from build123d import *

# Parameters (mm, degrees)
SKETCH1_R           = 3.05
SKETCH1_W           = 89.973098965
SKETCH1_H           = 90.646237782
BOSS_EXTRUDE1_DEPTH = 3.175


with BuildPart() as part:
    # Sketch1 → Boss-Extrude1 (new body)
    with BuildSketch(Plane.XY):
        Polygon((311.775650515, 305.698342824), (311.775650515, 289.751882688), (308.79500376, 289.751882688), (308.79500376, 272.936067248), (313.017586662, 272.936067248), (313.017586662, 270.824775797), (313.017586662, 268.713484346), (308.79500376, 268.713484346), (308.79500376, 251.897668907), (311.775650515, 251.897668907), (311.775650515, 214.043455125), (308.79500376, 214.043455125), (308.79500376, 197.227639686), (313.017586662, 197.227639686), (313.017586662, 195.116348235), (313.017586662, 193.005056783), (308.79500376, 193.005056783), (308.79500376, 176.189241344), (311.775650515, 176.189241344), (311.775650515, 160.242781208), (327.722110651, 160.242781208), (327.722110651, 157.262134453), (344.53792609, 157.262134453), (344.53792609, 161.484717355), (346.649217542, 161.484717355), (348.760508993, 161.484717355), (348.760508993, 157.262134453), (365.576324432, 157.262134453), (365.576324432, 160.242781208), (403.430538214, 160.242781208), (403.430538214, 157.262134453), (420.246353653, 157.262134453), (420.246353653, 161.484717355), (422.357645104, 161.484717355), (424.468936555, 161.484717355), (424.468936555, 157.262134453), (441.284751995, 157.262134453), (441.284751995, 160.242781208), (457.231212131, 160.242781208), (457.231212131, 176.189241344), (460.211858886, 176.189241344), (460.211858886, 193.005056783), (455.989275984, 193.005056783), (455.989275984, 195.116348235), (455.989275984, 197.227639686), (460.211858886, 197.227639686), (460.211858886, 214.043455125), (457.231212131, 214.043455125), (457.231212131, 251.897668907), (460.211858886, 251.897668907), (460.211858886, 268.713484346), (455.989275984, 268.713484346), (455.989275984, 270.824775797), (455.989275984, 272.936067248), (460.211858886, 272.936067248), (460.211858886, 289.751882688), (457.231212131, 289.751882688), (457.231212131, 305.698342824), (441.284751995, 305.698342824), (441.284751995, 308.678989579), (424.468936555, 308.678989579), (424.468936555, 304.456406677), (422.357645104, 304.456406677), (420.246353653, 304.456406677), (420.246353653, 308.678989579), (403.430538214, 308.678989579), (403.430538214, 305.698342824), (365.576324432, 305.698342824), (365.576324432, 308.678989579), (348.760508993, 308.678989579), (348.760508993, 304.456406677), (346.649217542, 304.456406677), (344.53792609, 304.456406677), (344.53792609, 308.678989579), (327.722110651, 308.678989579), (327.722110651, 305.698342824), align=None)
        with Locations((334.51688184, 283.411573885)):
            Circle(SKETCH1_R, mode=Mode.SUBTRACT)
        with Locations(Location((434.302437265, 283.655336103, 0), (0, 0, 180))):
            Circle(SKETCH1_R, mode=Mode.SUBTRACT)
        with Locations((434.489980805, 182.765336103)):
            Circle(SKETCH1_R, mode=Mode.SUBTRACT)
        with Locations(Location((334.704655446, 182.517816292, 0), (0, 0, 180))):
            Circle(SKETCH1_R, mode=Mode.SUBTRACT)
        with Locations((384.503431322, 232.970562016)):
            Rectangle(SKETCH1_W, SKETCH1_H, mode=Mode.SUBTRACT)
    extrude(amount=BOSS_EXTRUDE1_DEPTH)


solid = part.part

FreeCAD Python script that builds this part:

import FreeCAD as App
import Part
import Sketcher

V = App.Vector
Q = App.Units.Quantity

doc = App.newDocument("Part")
body = doc.addObject("PartDesign::Body", "Body")

sketch1 = body.newObject("Sketcher::SketchObject", "Sketch")
sketch1.AttachmentSupport = (doc.getObject("XY_Plane"), [""])
sketch1.MapMode = "FlatFace"
sketch1.addGeometry([
    Part.LineSegment(V(311.775651, 305.698343, 0), V(311.775651, 289.751883, 0)),
    Part.LineSegment(V(311.775651, 289.751883, 0), V(308.795004, 289.751883, 0)),
    Part.LineSegment(V(308.795004, 289.751883, 0), V(308.795004, 272.936067, 0)),
    Part.LineSegment(V(308.795004, 272.936067, 0), V(313.017587, 272.936067, 0)),
    Part.LineSegment(V(313.017587, 272.936067, 0), V(313.017587, 268.713484, 0)),
    Part.LineSegment(V(313.017587, 268.713484, 0), V(308.795004, 268.713484, 0)),
    Part.LineSegment(V(308.795004, 268.713484, 0), V(308.795004, 251.897669, 0)),
    Part.LineSegment(V(308.795004, 251.897669, 0), V(311.775651, 251.897669, 0)),
    Part.LineSegment(V(311.775651, 251.897669, 0), V(311.775651, 214.043455, 0)),
    Part.LineSegment(V(311.775651, 214.043455, 0), V(308.795004, 214.043455, 0)),
    Part.LineSegment(V(308.795004, 214.043455, 0), V(308.795004, 197.22764, 0)),
    Part.LineSegment(V(308.795004, 197.22764, 0), V(313.017587, 197.22764, 0)),
    Part.LineSegment(V(313.017587, 197.22764, 0), V(313.017587, 193.005057, 0)),
    Part.LineSegment(V(313.017587, 193.005057, 0), V(308.795004, 193.005057, 0)),
    Part.LineSegment(V(308.795004, 193.005057, 0), V(308.795004, 176.189241, 0)),
    Part.LineSegment(V(308.795004, 176.189241, 0), V(311.775651, 176.189241, 0)),
    Part.LineSegment(V(311.775651, 176.189241, 0), V(311.775651, 160.242781, 0)),
    Part.LineSegment(V(311.775651, 160.242781, 0), V(327.722111, 160.242781, 0)),
    Part.LineSegment(V(327.722111, 160.242781, 0), V(327.722111, 157.262134, 0)),
    Part.LineSegment(V(327.722111, 157.262134, 0), V(344.537926, 157.262134, 0)),
    Part.LineSegment(V(344.537926, 157.262134, 0), V(344.537926, 161.484717, 0)),
    Part.LineSegment(V(344.537926, 161.484717, 0), V(348.760509, 161.484717, 0)),
    Part.LineSegment(V(348.760509, 161.484717, 0), V(348.760509, 157.262134, 0)),
    Part.LineSegment(V(348.760509, 157.262134, 0), V(365.576324, 157.262134, 0)),
    Part.LineSegment(V(365.576324, 157.262134, 0), V(365.576324, 160.242781, 0)),
    Part.LineSegment(V(365.576324, 160.242781, 0), V(403.430538, 160.242781, 0)),
    Part.LineSegment(V(403.430538, 160.242781, 0), V(403.430538, 157.262134, 0)),
    Part.LineSegment(V(403.430538, 157.262134, 0), V(420.246354, 157.262134, 0)),
    Part.LineSegment(V(420.246354, 157.262134, 0), V(420.246354, 161.484717, 0)),
    Part.LineSegment(V(420.246354, 161.484717, 0), V(424.468937, 161.484717, 0)),
    Part.LineSegment(V(424.468937, 161.484717, 0), V(424.468937, 157.262134, 0)),
    Part.LineSegment(V(424.468937, 157.262134, 0), V(441.284752, 157.262134, 0)),
    Part.LineSegment(V(441.284752, 157.262134, 0), V(441.284752, 160.242781, 0)),
    Part.LineSegment(V(441.284752, 160.242781, 0), V(457.231212, 160.242781, 0)),
    Part.LineSegment(V(457.231212, 160.242781, 0), V(457.231212, 176.189241, 0)),
    Part.LineSegment(V(457.231212, 176.189241, 0), V(460.211859, 176.189241, 0)),
    Part.LineSegment(V(460.211859, 176.189241, 0), V(460.211859, 193.005057, 0)),
    Part.LineSegment(V(460.211859, 193.005057, 0), V(455.989276, 193.005057, 0)),
    Part.LineSegment(V(455.989276, 193.005057, 0), V(455.989276, 197.22764, 0)),
    Part.LineSegment(V(455.989276, 197.22764, 0), V(460.211859, 197.22764, 0)),
    Part.LineSegment(V(460.211859, 197.22764, 0), V(460.211859, 214.043455, 0)),
    Part.LineSegment(V(460.211859, 214.043455, 0), V(457.231212, 214.043455, 0)),
    Part.LineSegment(V(457.231212, 214.043455, 0), V(457.231212, 251.897669, 0)),
    Part.LineSegment(V(457.231212, 251.897669, 0), V(460.211859, 251.897669, 0)),
    Part.LineSegment(V(460.211859, 251.897669, 0), V(460.211859, 268.713484, 0)),
    Part.LineSegment(V(460.211859, 268.713484, 0), V(455.989276, 268.713484, 0)),
    Part.LineSegment(V(455.989276, 268.713484, 0), V(455.989276, 272.936067, 0)),
    Part.LineSegment(V(455.989276, 272.936067, 0), V(460.211859, 272.936067, 0)),
    Part.LineSegment(V(460.211859, 272.936067, 0), V(460.211859, 289.751883, 0)),
    Part.LineSegment(V(460.211859, 289.751883, 0), V(457.231212, 289.751883, 0)),
    Part.LineSegment(V(457.231212, 289.751883, 0), V(457.231212, 305.698343, 0)),
    Part.LineSegment(V(457.231212, 305.698343, 0), V(441.284752, 305.698343, 0)),
    Part.LineSegment(V(441.284752, 305.698343, 0), V(441.284752, 308.67899, 0)),
    Part.LineSegment(V(441.284752, 308.67899, 0), V(424.468937, 308.67899, 0)),
    Part.LineSegment(V(424.468937, 308.67899, 0), V(424.468937, 304.456407, 0)),
    Part.LineSegment(V(424.468937, 304.456407, 0), V(420.246354, 304.456407, 0)),
    Part.LineSegment(V(420.246354, 304.456407, 0), V(420.246354, 308.67899, 0)),
    Part.LineSegment(V(420.246354, 308.67899, 0), V(403.430538, 308.67899, 0)),
    Part.LineSegment(V(403.430538, 308.67899, 0), V(403.430538, 305.698343, 0)),
    Part.LineSegment(V(403.430538, 305.698343, 0), V(365.576324, 305.698343, 0)),
    Part.LineSegment(V(365.576324, 305.698343, 0), V(365.576324, 308.67899, 0)),
    Part.LineSegment(V(365.576324, 308.67899, 0), V(348.760509, 308.67899, 0)),
    Part.LineSegment(V(348.760509, 308.67899, 0), V(348.760509, 304.456407, 0)),
    Part.LineSegment(V(348.760509, 304.456407, 0), V(344.537926, 304.456407, 0)),
    Part.LineSegment(V(344.537926, 304.456407, 0), V(344.537926, 308.67899, 0)),
    Part.LineSegment(V(344.537926, 308.67899, 0), V(327.722111, 308.67899, 0)),
    Part.LineSegment(V(327.722111, 308.67899, 0), V(327.722111, 305.698343, 0)),
    Part.LineSegment(V(327.722111, 305.698343, 0), V(311.775651, 305.698343, 0)),
    Part.Circle(V(334.704655, 182.517816, 0), V(0, 0, 1), 3.05),
    Part.LineSegment(V(429.489981, 187.647443, 0), V(339.516882, 187.647443, 0)),
    Part.LineSegment(V(339.516882, 187.647443, 0), V(339.516882, 278.293681, 0)),
    Part.LineSegment(V(339.516882, 278.293681, 0), V(429.489981, 278.293681, 0)),
    Part.LineSegment(V(429.489981, 278.293681, 0), V(429.489981, 187.647443, 0)),
    Part.Circle(V(434.489981, 182.765336, 0), V(0, 0, 1), 3.05),
    Part.Circle(V(334.516882, 283.411574, 0), V(0, 0, 1), 3.05),
    Part.Circle(V(434.302437, 283.655336, 0), V(0, 0, 1), 3.05),
], False)
sketch1.addConstraint([
    Sketcher.Constraint("Coincident", 0, 2, 1, 1),
    Sketcher.Constraint("Coincident", 1, 2, 2, 1),
    Sketcher.Constraint("Coincident", 2, 2, 3, 1),
    Sketcher.Constraint("Coincident", 3, 2, 4, 1),
    Sketcher.Constraint("Coincident", 4, 2, 5, 1),
    Sketcher.Constraint("Coincident", 5, 2, 6, 1),
    Sketcher.Constraint("Coincident", 6, 2, 7, 1),
    Sketcher.Constraint("Coincident", 7, 2, 8, 1),
    Sketcher.Constraint("Coincident", 8, 2, 9, 1),
    Sketcher.Constraint("Coincident", 9, 2, 10, 1),
    Sketcher.Constraint("Coincident", 10, 2, 11, 1),
    Sketcher.Constraint("Coincident", 11, 2, 12, 1),
    Sketcher.Constraint("Coincident", 12, 2, 13, 1),
    Sketcher.Constraint("Coincident", 13, 2, 14, 1),
    Sketcher.Constraint("Coincident", 14, 2, 15, 1),
    Sketcher.Constraint("Coincident", 15, 2, 16, 1),
    Sketcher.Constraint("Coincident", 16, 2, 17, 1),
    Sketcher.Constraint("Coincident", 17, 2, 18, 1),
    Sketcher.Constraint("Coincident", 18, 2, 19, 1),
    Sketcher.Constraint("Coincident", 19, 2, 20, 1),
    Sketcher.Constraint("Coincident", 20, 2, 21, 1),
    Sketcher.Constraint("Coincident", 21, 2, 22, 1),
    Sketcher.Constraint("Coincident", 22, 2, 23, 1),
    Sketcher.Constraint("Coincident", 23, 2, 24, 1),
    Sketcher.Constraint("Coincident", 24, 2, 25, 1),
    Sketcher.Constraint("Coincident", 25, 2, 26, 1),
    Sketcher.Constraint("Coincident", 26, 2, 27, 1),
    Sketcher.Constraint("Coincident", 27, 2, 28, 1),
    Sketcher.Constraint("Coincident", 28, 2, 29, 1),
    Sketcher.Constraint("Coincident", 29, 2, 30, 1),
    Sketcher.Constraint("Coincident", 30, 2, 31, 1),
    Sketcher.Constraint("Coincident", 31, 2, 32, 1),
    Sketcher.Constraint("Coincident", 32, 2, 33, 1),
    Sketcher.Constraint("Coincident", 33, 2, 34, 1),
    Sketcher.Constraint("Coincident", 34, 2, 35, 1),
    Sketcher.Constraint("Coincident", 35, 2, 36, 1),
    Sketcher.Constraint("Coincident", 36, 2, 37, 1),
    Sketcher.Constraint("Coincident", 37, 2, 38, 1),
    Sketcher.Constraint("Coincident", 38, 2, 39, 1),
    Sketcher.Constraint("Coincident", 39, 2, 40, 1),
    Sketcher.Constraint("Coincident", 40, 2, 41, 1),
    Sketcher.Constraint("Coincident", 41, 2, 42, 1),
    Sketcher.Constraint("Coincident", 42, 2, 43, 1),
    Sketcher.Constraint("Coincident", 43, 2, 44, 1),
    Sketcher.Constraint("Coincident", 44, 2, 45, 1),
    Sketcher.Constraint("Coincident", 45, 2, 46, 1),
    Sketcher.Constraint("Coincident", 46, 2, 47, 1),
    Sketcher.Constraint("Coincident", 47, 2, 48, 1),
    Sketcher.Constraint("Coincident", 48, 2, 49, 1),
    Sketcher.Constraint("Coincident", 49, 2, 50, 1),
    Sketcher.Constraint("Coincident", 50, 2, 51, 1),
    Sketcher.Constraint("Coincident", 51, 2, 52, 1),
    Sketcher.Constraint("Coincident", 52, 2, 53, 1),
    Sketcher.Constraint("Coincident", 53, 2, 54, 1),
    Sketcher.Constraint("Coincident", 54, 2, 55, 1),
    Sketcher.Constraint("Coincident", 55, 2, 56, 1),
    Sketcher.Constraint("Coincident", 56, 2, 57, 1),
    Sketcher.Constraint("Coincident", 57, 2, 58, 1),
    Sketcher.Constraint("Coincident", 58, 2, 59, 1),
    Sketcher.Constraint("Coincident", 59, 2, 60, 1),
    Sketcher.Constraint("Coincident", 60, 2, 61, 1),
    Sketcher.Constraint("Coincident", 61, 2, 62, 1),
    Sketcher.Constraint("Coincident", 62, 2, 63, 1),
    Sketcher.Constraint("Coincident", 63, 2, 64, 1),
    Sketcher.Constraint("Coincident", 64, 2, 65, 1),
    Sketcher.Constraint("Coincident", 65, 2, 66, 1),
    Sketcher.Constraint("Coincident", 66, 2, 67, 1),
    Sketcher.Constraint("Coincident", 67, 2, 0, 1),
    Sketcher.Constraint("Coincident", 69, 2, 70, 1),
    Sketcher.Constraint("Coincident", 70, 2, 71, 1),
    Sketcher.Constraint("Coincident", 71, 2, 72, 1),
    Sketcher.Constraint("Coincident", 72, 2, 69, 1),
    Sketcher.Constraint("Vertical", 0),
    Sketcher.Constraint("Horizontal", 1),
    Sketcher.Constraint("Vertical", 2),
    Sketcher.Constraint("Horizontal", 3),
    Sketcher.Constraint("Vertical", 4),
    Sketcher.Constraint("Horizontal", 5),
    Sketcher.Constraint("Vertical", 6),
    Sketcher.Constraint("Horizontal", 7),
    Sketcher.Constraint("Vertical", 8),
    Sketcher.Constraint("Horizontal", 9),
    Sketcher.Constraint("Vertical", 10),
    Sketcher.Constraint("Horizontal", 11),
    Sketcher.Constraint("Vertical", 12),
    Sketcher.Constraint("Horizontal", 13),
    Sketcher.Constraint("Vertical", 14),
    Sketcher.Constraint("Horizontal", 15),
    Sketcher.Constraint("Vertical", 16),
    Sketcher.Constraint("Horizontal", 17),
    Sketcher.Constraint("Vertical", 18),
    Sketcher.Constraint("Horizontal", 19),
    Sketcher.Constraint("Vertical", 20),
    Sketcher.Constraint("Horizontal", 21),
    Sketcher.Constraint("Vertical", 22),
    Sketcher.Constraint("Horizontal", 23),
    Sketcher.Constraint("Vertical", 24),
    Sketcher.Constraint("Horizontal", 25),
    Sketcher.Constraint("Vertical", 26),
    Sketcher.Constraint("Horizontal", 27),
    Sketcher.Constraint("Vertical", 28),
    Sketcher.Constraint("Horizontal", 29),
    Sketcher.Constraint("Vertical", 30),
    Sketcher.Constraint("Horizontal", 31),
    Sketcher.Constraint("Vertical", 32),
    Sketcher.Constraint("Horizontal", 33),
    Sketcher.Constraint("Vertical", 34),
    Sketcher.Constraint("Horizontal", 35),
    Sketcher.Constraint("Vertical", 36),
    Sketcher.Constraint("Horizontal", 37),
    Sketcher.Constraint("Vertical", 38),
    Sketcher.Constraint("Horizontal", 39),
    Sketcher.Constraint("Vertical", 40),
    Sketcher.Constraint("Horizontal", 41),
    Sketcher.Constraint("Vertical", 42),
    Sketcher.Constraint("Horizontal", 43),
    Sketcher.Constraint("Vertical", 44),
    Sketcher.Constraint("Horizontal", 45),
    Sketcher.Constraint("Vertical", 46),
    Sketcher.Constraint("Horizontal", 47),
    Sketcher.Constraint("Vertical", 48),
    Sketcher.Constraint("Horizontal", 49),
    Sketcher.Constraint("Vertical", 50),
    Sketcher.Constraint("Horizontal", 51),
    Sketcher.Constraint("Vertical", 52),
    Sketcher.Constraint("Horizontal", 53),
    Sketcher.Constraint("Vertical", 54),
    Sketcher.Constraint("Horizontal", 55),
    Sketcher.Constraint("Vertical", 56),
    Sketcher.Constraint("Horizontal", 57),
    Sketcher.Constraint("Vertical", 58),
    Sketcher.Constraint("Horizontal", 59),
    Sketcher.Constraint("Vertical", 60),
    Sketcher.Constraint("Horizontal", 61),
    Sketcher.Constraint("Vertical", 62),
    Sketcher.Constraint("Horizontal", 63),
    Sketcher.Constraint("Vertical", 64),
    Sketcher.Constraint("Horizontal", 65),
    Sketcher.Constraint("Vertical", 66),
    Sketcher.Constraint("Horizontal", 67),
    Sketcher.Constraint("Horizontal", 69),
    Sketcher.Constraint("Vertical", 70),
    Sketcher.Constraint("Horizontal", 71),
    Sketcher.Constraint("Vertical", 72),
    Sketcher.Constraint("Equal", 68, 73),
    Sketcher.Constraint("Equal", 73, 74),
    Sketcher.Constraint("Equal", 74, 75),
    Sketcher.Constraint("Horizontal", 19, 2, 22, 2),
    Sketcher.Constraint("Horizontal", 17, 2, 24, 2),
    Sketcher.Constraint("Horizontal", 23, 2, 26, 2),
    Sketcher.Constraint("Horizontal", 21, 2, 28, 2),
    Sketcher.Constraint("Horizontal", 27, 2, 30, 2),
    Sketcher.Constraint("Horizontal", 25, 2, 32, 2),
    Sketcher.Constraint("Horizontal", 15, 2, 34, 2),
    Sketcher.Constraint("Horizontal", 13, 2, 36, 2),
    Sketcher.Constraint("Horizontal", 11, 2, 38, 2),
    Sketcher.Constraint("Horizontal", 9, 2, 40, 2),
    Sketcher.Constraint("Horizontal", 7, 2, 42, 2),
    Sketcher.Constraint("Horizontal", 5, 2, 44, 2),
    Sketcher.Constraint("Horizontal", 3, 2, 46, 2),
    Sketcher.Constraint("Horizontal", 1, 2, 48, 2),
    Sketcher.Constraint("Horizontal", 53, 2, 56, 2),
    Sketcher.Constraint("Horizontal", 51, 2, 58, 2),
    Sketcher.Constraint("Horizontal", 57, 2, 60, 2),
    Sketcher.Constraint("Horizontal", 55, 2, 62, 2),
    Sketcher.Constraint("Horizontal", 61, 2, 64, 2),
    Sketcher.Constraint("Horizontal", 59, 2, 66, 2),
    Sketcher.Constraint("Vertical", 2, 2, 5, 2),
    Sketcher.Constraint("Vertical", 0, 2, 7, 2),
    Sketcher.Constraint("Vertical", 6, 2, 9, 2),
    Sketcher.Constraint("Vertical", 4, 2, 11, 2),
    Sketcher.Constraint("Vertical", 10, 2, 13, 2),
    Sketcher.Constraint("Vertical", 8, 2, 15, 2),
    Sketcher.Constraint("Vertical", 36, 2, 39, 2),
    Sketcher.Constraint("Vertical", 34, 2, 41, 2),
    Sketcher.Constraint("Vertical", 40, 2, 43, 2),
    Sketcher.Constraint("Vertical", 38, 2, 45, 2),
    Sketcher.Constraint("Vertical", 44, 2, 47, 2),
    Sketcher.Constraint("Vertical", 42, 2, 49, 2),
    Sketcher.Constraint("Vertical", 32, 2, 51, 2),
    Sketcher.Constraint("Vertical", 30, 2, 53, 2),
    Sketcher.Constraint("Vertical", 28, 2, 55, 2),
    Sketcher.Constraint("Vertical", 26, 2, 57, 2),
    Sketcher.Constraint("Vertical", 24, 2, 59, 2),
    Sketcher.Constraint("Vertical", 22, 2, 61, 2),
    Sketcher.Constraint("Vertical", 20, 2, 63, 2),
    Sketcher.Constraint("Vertical", 18, 2, 65, 2),
    Sketcher.Constraint("Equal", 13, 21),
    Sketcher.Constraint("Equal", 19, 23),
    Sketcher.Constraint("Equal", 23, 27),
    Sketcher.Constraint("Equal", 21, 29),
    Sketcher.Constraint("Equal", 27, 31),
    Sketcher.Constraint("Equal", 17, 33),
    Sketcher.Constraint("Equal", 15, 35),
    Sketcher.Constraint("Equal", 29, 37),
    Sketcher.Constraint("Equal", 67, 0),
    Sketcher.Constraint("Equal", 65, 2),
    Sketcher.Constraint("Equal", 63, 4),
    Sketcher.Constraint("Equal", 2, 6),
    Sketcher.Constraint("Equal", 59, 8),
    Sketcher.Constraint("Equal", 6, 10),
    Sketcher.Constraint("Equal", 4, 12),
    Sketcher.Constraint("Equal", 10, 14),
    Sketcher.Constraint("Equal", 0, 16),
    Sketcher.Constraint("Equal", 49, 18),
    Sketcher.Constraint("Equal", 12, 20),
    Sketcher.Constraint("Equal", 32, 52),
    Sketcher.Constraint("Equal", 46, 54),
    Sketcher.Constraint("Diameter", 68, Q("6.1 mm")),
    Sketcher.Constraint("DistanceX", 69, 2, 69, 1, Q("89.973099 mm")),
    Sketcher.Constraint("DistanceX", 17, 1, 17, 2, Q("15.94646 mm")),
    Sketcher.Constraint("DistanceX", 1, 2, 1, 1, Q("2.980647 mm")),
    Sketcher.Constraint("DistanceX", 3, 1, 3, 2, Q("4.222583 mm")),
    Sketcher.Constraint("DistanceX", 19, 1, 19, 2, Q("16.815815 mm")),
    Sketcher.Constraint("DistanceX", 25, 1, 25, 2, Q("37.854214 mm")),
    Sketcher.Constraint("DistanceY", 70, 1, 70, 2, Q("90.646238 mm")),
    Sketcher.Constraint("DistanceX", -1, 1, 73, 3, Q("434.489981 mm")),
    Sketcher.Constraint("DistanceX", -1, 1, 74, 3, Q("334.516882 mm")),
    Sketcher.Constraint("DistanceX", -1, 1, 0, 2, Q("311.775651 mm")),
    Sketcher.Constraint("DistanceY", -1, 1, 6, 2, Q("251.897669 mm")),
    Sketcher.Constraint("DistanceX", -1, 1, 69, 2, Q("339.516882 mm")),
    Sketcher.Constraint("DistanceY", -1, 1, 70, 2, Q("278.293681 mm")),
    Sketcher.Constraint("DistanceX", -1, 1, 68, 3, Q("334.704655 mm")),
    Sketcher.Constraint("DistanceY", -1, 1, 68, 3, Q("182.517816 mm")),
    Sketcher.Constraint("DistanceY", -1, 1, 73, 3, Q("182.765336 mm")),
    Sketcher.Constraint("DistanceY", -1, 1, 74, 3, Q("283.411574 mm")),
    Sketcher.Constraint("DistanceX", -1, 1, 75, 3, Q("434.302437 mm")),
    Sketcher.Constraint("DistanceY", -1, 1, 75, 3, Q("283.655336 mm")),
])
pad1 = body.newObject("PartDesign::Pad", "Pad")
pad1.Profile = sketch1
pad1.Length = 3.175

doc.recompute()
